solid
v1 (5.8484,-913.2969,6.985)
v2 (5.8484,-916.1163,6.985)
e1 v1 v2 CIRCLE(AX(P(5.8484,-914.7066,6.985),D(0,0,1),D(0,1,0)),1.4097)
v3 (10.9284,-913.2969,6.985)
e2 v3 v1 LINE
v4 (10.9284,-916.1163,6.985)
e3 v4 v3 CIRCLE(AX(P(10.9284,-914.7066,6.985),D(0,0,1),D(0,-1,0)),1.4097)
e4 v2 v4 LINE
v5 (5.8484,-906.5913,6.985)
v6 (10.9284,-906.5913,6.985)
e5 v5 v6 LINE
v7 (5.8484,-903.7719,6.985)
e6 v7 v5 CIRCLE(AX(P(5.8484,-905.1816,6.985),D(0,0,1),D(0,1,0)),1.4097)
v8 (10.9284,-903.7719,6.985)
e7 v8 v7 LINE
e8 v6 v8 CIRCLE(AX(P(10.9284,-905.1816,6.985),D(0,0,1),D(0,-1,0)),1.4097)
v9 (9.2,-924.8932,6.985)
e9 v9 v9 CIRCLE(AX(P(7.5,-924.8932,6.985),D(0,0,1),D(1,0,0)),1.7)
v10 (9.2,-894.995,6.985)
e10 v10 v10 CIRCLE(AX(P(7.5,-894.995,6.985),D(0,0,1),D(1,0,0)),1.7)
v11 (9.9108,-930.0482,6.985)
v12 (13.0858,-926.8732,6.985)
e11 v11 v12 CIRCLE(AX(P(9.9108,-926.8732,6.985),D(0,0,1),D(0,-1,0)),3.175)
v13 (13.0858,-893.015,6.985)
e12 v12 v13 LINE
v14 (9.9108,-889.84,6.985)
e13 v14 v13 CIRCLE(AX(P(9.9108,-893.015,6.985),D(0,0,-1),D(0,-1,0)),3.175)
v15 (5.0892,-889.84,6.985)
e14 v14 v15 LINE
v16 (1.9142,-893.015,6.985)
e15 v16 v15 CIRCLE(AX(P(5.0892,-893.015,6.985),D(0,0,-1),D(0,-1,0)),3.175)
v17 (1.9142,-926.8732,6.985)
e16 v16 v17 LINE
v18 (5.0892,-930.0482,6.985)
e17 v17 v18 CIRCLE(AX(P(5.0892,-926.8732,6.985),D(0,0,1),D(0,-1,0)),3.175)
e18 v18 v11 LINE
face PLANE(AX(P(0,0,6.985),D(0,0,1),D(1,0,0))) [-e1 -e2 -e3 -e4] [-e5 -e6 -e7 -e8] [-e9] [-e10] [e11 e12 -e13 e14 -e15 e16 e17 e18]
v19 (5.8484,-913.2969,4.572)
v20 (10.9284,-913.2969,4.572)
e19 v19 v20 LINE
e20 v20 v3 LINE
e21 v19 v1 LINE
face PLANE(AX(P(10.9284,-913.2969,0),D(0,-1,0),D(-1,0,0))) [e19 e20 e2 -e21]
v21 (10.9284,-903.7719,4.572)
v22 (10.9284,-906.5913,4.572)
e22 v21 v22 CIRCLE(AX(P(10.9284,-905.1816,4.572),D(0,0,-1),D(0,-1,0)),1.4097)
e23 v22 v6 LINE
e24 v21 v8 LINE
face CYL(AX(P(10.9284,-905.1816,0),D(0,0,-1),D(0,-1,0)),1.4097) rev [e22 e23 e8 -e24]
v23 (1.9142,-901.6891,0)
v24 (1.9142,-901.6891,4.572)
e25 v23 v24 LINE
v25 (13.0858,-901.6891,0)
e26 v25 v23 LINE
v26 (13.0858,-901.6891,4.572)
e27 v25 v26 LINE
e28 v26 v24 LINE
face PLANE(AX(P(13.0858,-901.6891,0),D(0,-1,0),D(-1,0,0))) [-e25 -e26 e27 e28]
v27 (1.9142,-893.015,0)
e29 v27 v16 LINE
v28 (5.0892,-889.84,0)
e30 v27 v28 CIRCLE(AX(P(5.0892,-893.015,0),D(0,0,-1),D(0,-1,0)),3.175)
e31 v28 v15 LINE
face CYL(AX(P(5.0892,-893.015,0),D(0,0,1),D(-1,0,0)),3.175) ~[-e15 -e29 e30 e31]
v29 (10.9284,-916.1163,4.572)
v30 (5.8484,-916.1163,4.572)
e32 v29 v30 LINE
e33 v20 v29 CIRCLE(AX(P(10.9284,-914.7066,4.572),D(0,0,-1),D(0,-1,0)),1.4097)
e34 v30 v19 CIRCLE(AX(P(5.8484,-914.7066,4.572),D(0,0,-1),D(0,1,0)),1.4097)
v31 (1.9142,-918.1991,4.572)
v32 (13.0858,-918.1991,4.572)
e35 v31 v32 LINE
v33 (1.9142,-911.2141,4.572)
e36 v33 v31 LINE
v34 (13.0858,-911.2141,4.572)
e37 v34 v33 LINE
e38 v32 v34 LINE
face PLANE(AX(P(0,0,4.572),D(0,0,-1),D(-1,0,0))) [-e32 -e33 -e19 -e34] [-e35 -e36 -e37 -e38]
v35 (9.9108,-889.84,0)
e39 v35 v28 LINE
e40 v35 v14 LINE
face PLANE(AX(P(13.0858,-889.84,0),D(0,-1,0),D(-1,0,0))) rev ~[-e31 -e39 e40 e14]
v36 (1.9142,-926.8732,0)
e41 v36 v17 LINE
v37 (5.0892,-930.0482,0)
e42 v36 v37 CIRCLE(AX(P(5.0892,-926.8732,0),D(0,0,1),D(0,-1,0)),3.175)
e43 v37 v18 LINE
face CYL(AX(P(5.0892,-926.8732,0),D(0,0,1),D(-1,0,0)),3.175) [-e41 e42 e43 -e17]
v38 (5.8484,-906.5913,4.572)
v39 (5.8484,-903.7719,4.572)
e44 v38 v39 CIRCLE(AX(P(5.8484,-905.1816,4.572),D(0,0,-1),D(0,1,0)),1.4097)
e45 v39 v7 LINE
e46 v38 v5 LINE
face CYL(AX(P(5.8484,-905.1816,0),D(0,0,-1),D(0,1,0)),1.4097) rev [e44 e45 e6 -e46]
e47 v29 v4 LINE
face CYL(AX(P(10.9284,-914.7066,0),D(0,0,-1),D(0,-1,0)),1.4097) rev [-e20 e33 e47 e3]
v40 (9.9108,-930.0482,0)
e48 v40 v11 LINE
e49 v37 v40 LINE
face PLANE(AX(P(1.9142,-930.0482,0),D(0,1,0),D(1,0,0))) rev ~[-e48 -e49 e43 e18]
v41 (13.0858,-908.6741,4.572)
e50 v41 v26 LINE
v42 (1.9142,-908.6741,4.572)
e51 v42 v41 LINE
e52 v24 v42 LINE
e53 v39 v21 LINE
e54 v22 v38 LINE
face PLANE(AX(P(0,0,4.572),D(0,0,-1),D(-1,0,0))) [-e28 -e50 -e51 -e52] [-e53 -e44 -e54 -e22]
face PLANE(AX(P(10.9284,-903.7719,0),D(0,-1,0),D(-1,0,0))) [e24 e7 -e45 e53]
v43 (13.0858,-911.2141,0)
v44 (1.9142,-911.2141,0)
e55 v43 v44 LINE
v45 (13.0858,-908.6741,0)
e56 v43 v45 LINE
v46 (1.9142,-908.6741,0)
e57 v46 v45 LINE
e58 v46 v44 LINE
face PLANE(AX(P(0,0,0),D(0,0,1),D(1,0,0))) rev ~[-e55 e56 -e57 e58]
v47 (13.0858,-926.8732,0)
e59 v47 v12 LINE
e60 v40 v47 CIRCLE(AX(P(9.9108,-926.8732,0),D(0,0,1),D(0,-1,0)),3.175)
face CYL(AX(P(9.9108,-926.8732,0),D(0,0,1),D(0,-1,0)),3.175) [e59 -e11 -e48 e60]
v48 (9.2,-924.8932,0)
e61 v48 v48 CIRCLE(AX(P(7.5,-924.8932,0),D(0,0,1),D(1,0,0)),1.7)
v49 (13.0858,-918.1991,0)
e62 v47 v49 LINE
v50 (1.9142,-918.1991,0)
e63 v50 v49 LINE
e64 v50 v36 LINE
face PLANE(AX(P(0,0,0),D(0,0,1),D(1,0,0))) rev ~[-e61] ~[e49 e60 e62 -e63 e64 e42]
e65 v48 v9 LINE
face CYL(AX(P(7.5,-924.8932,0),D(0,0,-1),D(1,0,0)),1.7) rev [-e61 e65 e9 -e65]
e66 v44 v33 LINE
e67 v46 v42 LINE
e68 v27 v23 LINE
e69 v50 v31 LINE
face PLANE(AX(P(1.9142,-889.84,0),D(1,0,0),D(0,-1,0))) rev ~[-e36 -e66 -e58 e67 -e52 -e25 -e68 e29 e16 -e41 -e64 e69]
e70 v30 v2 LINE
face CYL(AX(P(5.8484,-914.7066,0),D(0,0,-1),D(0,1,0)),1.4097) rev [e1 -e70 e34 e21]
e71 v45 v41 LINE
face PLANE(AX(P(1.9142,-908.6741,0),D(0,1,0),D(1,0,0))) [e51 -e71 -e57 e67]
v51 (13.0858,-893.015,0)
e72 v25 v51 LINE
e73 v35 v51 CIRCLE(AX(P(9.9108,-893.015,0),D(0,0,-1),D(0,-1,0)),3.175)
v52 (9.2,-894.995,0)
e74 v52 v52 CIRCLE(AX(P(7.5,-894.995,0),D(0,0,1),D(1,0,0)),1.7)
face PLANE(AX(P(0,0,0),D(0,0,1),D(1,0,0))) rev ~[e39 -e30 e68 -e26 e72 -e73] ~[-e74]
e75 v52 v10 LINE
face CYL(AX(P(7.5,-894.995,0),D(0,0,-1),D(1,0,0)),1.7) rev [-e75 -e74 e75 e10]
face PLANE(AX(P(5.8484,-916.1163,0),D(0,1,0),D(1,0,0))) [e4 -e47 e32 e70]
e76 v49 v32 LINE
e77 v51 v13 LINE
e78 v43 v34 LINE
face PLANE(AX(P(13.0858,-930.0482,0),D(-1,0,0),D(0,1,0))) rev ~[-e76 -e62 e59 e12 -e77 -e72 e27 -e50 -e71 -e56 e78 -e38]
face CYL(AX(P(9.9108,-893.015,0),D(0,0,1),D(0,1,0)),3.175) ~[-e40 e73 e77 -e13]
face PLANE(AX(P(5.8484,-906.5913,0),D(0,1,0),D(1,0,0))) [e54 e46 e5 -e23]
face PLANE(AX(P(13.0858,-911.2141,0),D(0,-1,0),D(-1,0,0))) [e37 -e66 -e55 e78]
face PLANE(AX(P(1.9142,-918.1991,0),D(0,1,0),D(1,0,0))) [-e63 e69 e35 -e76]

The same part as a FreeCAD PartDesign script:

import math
import FreeCAD as App
import Part
import Sketcher

V = App.Vector
Q = App.Units.Quantity


def edges_at(feature, points):
    """Names of the edges that pass closest to the given points."""
    edges = feature.Shape.Edges
    near = lambda p: min(range(len(edges)), key=lambda i: edges[i].distToShape(Part.Vertex(*p))[0])
    return sorted({f"Edge{near(p) + 1}" for p in points})

doc = App.newDocument("Part")
body = doc.addObject("PartDesign::Body", "Body")

sketch1 = body.newObject("Sketcher::SketchObject", "Sketch")
sketch1.AttachmentSupport = (doc.getObject("XY_Plane"), [""])
sketch1.MapMode = "FlatFace"
sketch1.addGeometry(Part.LineSegment(V(1.9, -889.8, 0), V(1.9, -930, 0)), False)
sketch1.addGeometry(Part.LineSegment(V(1.9, -930, 0), V(13.1, -930, 0)), False)
sketch1.addGeometry(Part.LineSegment(V(13.1, -930, 0), V(13.1, -889.8, 0)), False)
sketch1.addGeometry(Part.LineSegment(V(13.1, -889.8, 0), V(1.9, -889.8, 0)), False)
sketch1.addGeometry(Part.Circle(V(7.5, -924.9, 0), V(0, 0, 1), 1.7), False)
sketch1.addGeometry(Part.LineSegment(V(10.9, -916.1, 0), V(5.8, -916.1, 0)), False)
sketch1.addGeometry(Part.ArcOfCircle(Part.Circle(V(5.8, -914.7, 0), V(0, 0, 1), 1.4), math.radians(90), math.radians(270)), False)
sketch1.addGeometry(Part.LineSegment(V(5.8, -913.3, 0), V(10.9, -913.3, 0)), False)
sketch1.addGeometry(Part.ArcOfCircle(Part.Circle(V(10.9, -914.7, 0), V(0, 0, 1), 1.4), math.radians(-90), math.radians(90)), False)
sketch1.addGeometry(Part.LineSegment(V(10.9, -906.6, 0), V(5.8, -906.6, 0)), False)
sketch1.addGeometry(Part.ArcOfCircle(Part.Circle(V(5.8, -905.2, 0), V(0, 0, 1), 1.4), math.radians(90), math.radians(270)), False)
sketch1.addGeometry(Part.LineSegment(V(5.8, -903.8, 0), V(10.9, -903.8, 0)), False)
sketch1.addGeometry(Part.ArcOfCircle(Part.Circle(V(10.9, -905.2, 0), V(0, 0, 1), 1.4), math.radians(-90), math.radians(90)), False)
sketch1.addGeometry(Part.Circle(V(7.5, -895, 0), V(0, 0, 1), 1.7), False)
sketch1.addConstraint(Sketcher.Constraint("Coincident", 0, 2, 1, 1))
sketch1.addConstraint(Sketcher.Constraint("Coincident", 1, 2, 2, 1))
sketch1.addConstraint(Sketcher.Constraint("Coincident", 2, 2, 3, 1))
sketch1.addConstraint(Sketcher.Constraint("Coincident", 3, 2, 0, 1))
sketch1.addConstraint(Sketcher.Constraint("Tangent", 5, 2, 6, 2))
sketch1.addConstraint(Sketcher.Constraint("Tangent", 6, 1, 7, 1))
sketch1.addConstraint(Sketcher.Constraint("Tangent", 7, 2, 8, 2))
sketch1.addConstraint(Sketcher.Constraint("Tangent", 8, 1, 5, 1))
sketch1.addConstraint(Sketcher.Constraint("Tangent", 9, 2, 10, 2))
sketch1.addConstraint(Sketcher.Constraint("Tangent", 10, 1, 11, 1))
sketch1.addConstraint(Sketcher.Constraint("Tangent", 11, 2, 12, 2))
sketch1.addConstraint(Sketcher.Constraint("Tangent", 12, 1, 9, 1))
sketch1.addConstraint(Sketcher.Constraint("Vertical", 0))
sketch1.addConstraint(Sketcher.Constraint("Horizontal", 1))
sketch1.addConstraint(Sketcher.Constraint("Vertical", 2))
sketch1.addConstraint(Sketcher.Constraint("Horizontal", 3))
sketch1.addConstraint(Sketcher.Constraint("Horizontal", 5))
sketch1.addConstraint(Sketcher.Constraint("Horizontal", 7))
sketch1.addConstraint(Sketcher.Constraint("Horizontal", 9))
sketch1.addConstraint(Sketcher.Constraint("Horizontal", 11))
sketch1.addConstraint(Sketcher.Constraint("Equal", 8, 10))
sketch1.addConstraint(Sketcher.Constraint("Equal", 4, 13))
sketch1.addConstraint(Sketcher.Constraint("Vertical", 6, 3, 10, 3))
sketch1.addConstraint(Sketcher.Constraint("Vertical", 8, 3, 12, 3))
sketch1.addConstraint(Sketcher.Constraint("Vertical", 4, 3, 13, 3))
sketch1.addConstraint(Sketcher.Constraint("Radius", 6, Q("0.0555 in")))
sketch1.addConstraint(Sketcher.Constraint("Diameter", 4, 3.4))
sketch1.addConstraint(Sketcher.Constraint("DistanceX", 5, 2, 5, 1, Q("0.2 in")))
sketch1.addConstraint(Sketcher.Constraint("DistanceY", 0, 2, 0, 1, Q("1.583 in")))
sketch1.addConstraint(Sketcher.Constraint("DistanceY", 0, 2, 4, 3, 5.155))
sketch1.addConstraint(Sketcher.Constraint("DistanceY", 13, 3, 2, 2, 5.155))
sketch1.addConstraint(Sketcher.Constraint("DistanceY", 6, 3, 10, 3, Q("0.375 in")))
sketch1.addConstraint(Sketcher.Constraint("DistanceY", 0, 2, 6, 3, Q("0.604 in")))
sketch1.addConstraint(Sketcher.Constraint("DistanceX", 1, 1, 1, 2, 11.1716))
sketch1.addConstraint(Sketcher.Constraint("DistanceX", -1, 1, 1, 2, Q("0.5152 in")))
sketch1.addConstraint(Sketcher.Constraint("DistanceX", 0, 2, 6, 3, Q("0.1549 in")))
sketch1.addConstraint(Sketcher.Constraint("DistanceX", -1, 1, 4, 3, 7.5))
sketch1.addConstraint(Sketcher.Constraint("DistanceY", 4, 3, -1, 1, 924.8932))
pad1 = body.newObject("PartDesign::Pad", "Pad")
pad1.Profile = sketch1
pad1.Length = Q("0.275 in")

sketch2 = body.newObject("Sketcher::SketchObject", "Sketch001")
sketch2.AttachmentSupport = (doc.getObject("XY_Plane"), [""])
sketch2.MapMode = "FlatFace"
sketch2.addGeometry(Part.LineSegment(V(13, -911, 0), V(13, -918, 0)), False)
sketch2.addGeometry(Part.LineSegment(V(13, -918, 0), V(2, -918, 0)), False)
sketch2.addGeometry(Part.LineSegment(V(2, -918, 0), V(2, -911, 0)), False)
sketch2.addGeometry(Part.LineSegment(V(2, -911, 0), V(13, -911, 0)), False)
sketch2.addGeometry(Part.LineSegment(V(13, -902, 0), V(13, -909, 0)), False)
sketch2.addGeometry(Part.LineSegment(V(13, -909, 0), V(2, -909, 0)), False)
sketch2.addGeometry(Part.LineSegment(V(2, -909, 0), V(2, -902, 0)), False)
sketch2.addGeometry(Part.LineSegment(V(2, -902, 0), V(13, -902, 0)), False)
sketch2.addConstraint(Sketcher.Constraint("Coincident", 0, 2, 1, 1))
sketch2.addConstraint(Sketcher.Constraint("Coincident", 1, 2, 2, 1))
sketch2.addConstraint(Sketcher.Constraint("Coincident", 2, 2, 3, 1))
sketch2.addConstraint(Sketcher.Constraint("Coincident", 3, 2, 0, 1))
sketch2.addConstraint(Sketcher.Constraint("Coincident", 4, 2, 5, 1))
sketch2.addConstraint(Sketcher.Constraint("Coincident", 5, 2, 6, 1))
sketch2.addConstraint(Sketcher.Constraint("Coincident", 6, 2, 7, 1))
sketch2.addConstraint(Sketcher.Constraint("Coincident", 7, 2, 4, 1))
sketch2.addConstraint(Sketcher.Constraint("Vertical", 0))
sketch2.addConstraint(Sketcher.Constraint("Horizontal", 1))
sketch2.addConstraint(Sketcher.Constraint("Vertical", 2))
sketch2.addConstraint(Sketcher.Constraint("Horizontal", 3))
sketch2.addConstraint(Sketcher.Constraint("Vertical", 4))
sketch2.addConstraint(Sketcher.Constraint("Horizontal", 5))
sketch2.addConstraint(Sketcher.Constraint("Vertical", 6))
sketch2.addConstraint(Sketcher.Constraint("Horizontal", 7))
sketch2.addConstraint(Sketcher.Constraint("Vertical", 3, 2, 4, 2))
sketch2.addConstraint(Sketcher.Constraint("Vertical", 2, 2, 5, 2))
sketch2.addConstraint(Sketcher.Constraint("Equal", 2, 4))
sketch2.addConstraint(Sketcher.Constraint("DistanceY", 0, 2, 0, 1, Q("0.275 in")))
sketch2.addConstraint(Sketcher.Constraint("DistanceY", 3, 2, 4, 2, Q("0.1 in")))
sketch2.addConstraint(Sketcher.Constraint("DistanceX", 1, 2, 1, 1, 11.1716))
sketch2.addConstraint(Sketcher.Constraint("DistanceX", -1, 1, 0, 2, Q("0.5152 in")))
sketch2.addConstraint(Sketcher.Constraint("DistanceY", 0, 2, -1, 1, 918.199))
pocket1 = body.newObject("PartDesign::Pocket", "Pocket")
pocket1.Profile = sketch2
pocket1.Length = Q("0.18 in")
pocket1.Reversed = True
doc.recompute()

fillet = body.newObject("PartDesign::Fillet", "Fillet")
fillet.Base = (pocket1, edges_at(pocket1, [
    (13.086, -889.84, 3.493),
    (13.086, -930.048, 3.493),
    (1.914, -930.048, 3.493),
    (1.914, -889.84, 3.493),
]))
fillet.Radius = Q("0.125 in")

doc.recompute()
